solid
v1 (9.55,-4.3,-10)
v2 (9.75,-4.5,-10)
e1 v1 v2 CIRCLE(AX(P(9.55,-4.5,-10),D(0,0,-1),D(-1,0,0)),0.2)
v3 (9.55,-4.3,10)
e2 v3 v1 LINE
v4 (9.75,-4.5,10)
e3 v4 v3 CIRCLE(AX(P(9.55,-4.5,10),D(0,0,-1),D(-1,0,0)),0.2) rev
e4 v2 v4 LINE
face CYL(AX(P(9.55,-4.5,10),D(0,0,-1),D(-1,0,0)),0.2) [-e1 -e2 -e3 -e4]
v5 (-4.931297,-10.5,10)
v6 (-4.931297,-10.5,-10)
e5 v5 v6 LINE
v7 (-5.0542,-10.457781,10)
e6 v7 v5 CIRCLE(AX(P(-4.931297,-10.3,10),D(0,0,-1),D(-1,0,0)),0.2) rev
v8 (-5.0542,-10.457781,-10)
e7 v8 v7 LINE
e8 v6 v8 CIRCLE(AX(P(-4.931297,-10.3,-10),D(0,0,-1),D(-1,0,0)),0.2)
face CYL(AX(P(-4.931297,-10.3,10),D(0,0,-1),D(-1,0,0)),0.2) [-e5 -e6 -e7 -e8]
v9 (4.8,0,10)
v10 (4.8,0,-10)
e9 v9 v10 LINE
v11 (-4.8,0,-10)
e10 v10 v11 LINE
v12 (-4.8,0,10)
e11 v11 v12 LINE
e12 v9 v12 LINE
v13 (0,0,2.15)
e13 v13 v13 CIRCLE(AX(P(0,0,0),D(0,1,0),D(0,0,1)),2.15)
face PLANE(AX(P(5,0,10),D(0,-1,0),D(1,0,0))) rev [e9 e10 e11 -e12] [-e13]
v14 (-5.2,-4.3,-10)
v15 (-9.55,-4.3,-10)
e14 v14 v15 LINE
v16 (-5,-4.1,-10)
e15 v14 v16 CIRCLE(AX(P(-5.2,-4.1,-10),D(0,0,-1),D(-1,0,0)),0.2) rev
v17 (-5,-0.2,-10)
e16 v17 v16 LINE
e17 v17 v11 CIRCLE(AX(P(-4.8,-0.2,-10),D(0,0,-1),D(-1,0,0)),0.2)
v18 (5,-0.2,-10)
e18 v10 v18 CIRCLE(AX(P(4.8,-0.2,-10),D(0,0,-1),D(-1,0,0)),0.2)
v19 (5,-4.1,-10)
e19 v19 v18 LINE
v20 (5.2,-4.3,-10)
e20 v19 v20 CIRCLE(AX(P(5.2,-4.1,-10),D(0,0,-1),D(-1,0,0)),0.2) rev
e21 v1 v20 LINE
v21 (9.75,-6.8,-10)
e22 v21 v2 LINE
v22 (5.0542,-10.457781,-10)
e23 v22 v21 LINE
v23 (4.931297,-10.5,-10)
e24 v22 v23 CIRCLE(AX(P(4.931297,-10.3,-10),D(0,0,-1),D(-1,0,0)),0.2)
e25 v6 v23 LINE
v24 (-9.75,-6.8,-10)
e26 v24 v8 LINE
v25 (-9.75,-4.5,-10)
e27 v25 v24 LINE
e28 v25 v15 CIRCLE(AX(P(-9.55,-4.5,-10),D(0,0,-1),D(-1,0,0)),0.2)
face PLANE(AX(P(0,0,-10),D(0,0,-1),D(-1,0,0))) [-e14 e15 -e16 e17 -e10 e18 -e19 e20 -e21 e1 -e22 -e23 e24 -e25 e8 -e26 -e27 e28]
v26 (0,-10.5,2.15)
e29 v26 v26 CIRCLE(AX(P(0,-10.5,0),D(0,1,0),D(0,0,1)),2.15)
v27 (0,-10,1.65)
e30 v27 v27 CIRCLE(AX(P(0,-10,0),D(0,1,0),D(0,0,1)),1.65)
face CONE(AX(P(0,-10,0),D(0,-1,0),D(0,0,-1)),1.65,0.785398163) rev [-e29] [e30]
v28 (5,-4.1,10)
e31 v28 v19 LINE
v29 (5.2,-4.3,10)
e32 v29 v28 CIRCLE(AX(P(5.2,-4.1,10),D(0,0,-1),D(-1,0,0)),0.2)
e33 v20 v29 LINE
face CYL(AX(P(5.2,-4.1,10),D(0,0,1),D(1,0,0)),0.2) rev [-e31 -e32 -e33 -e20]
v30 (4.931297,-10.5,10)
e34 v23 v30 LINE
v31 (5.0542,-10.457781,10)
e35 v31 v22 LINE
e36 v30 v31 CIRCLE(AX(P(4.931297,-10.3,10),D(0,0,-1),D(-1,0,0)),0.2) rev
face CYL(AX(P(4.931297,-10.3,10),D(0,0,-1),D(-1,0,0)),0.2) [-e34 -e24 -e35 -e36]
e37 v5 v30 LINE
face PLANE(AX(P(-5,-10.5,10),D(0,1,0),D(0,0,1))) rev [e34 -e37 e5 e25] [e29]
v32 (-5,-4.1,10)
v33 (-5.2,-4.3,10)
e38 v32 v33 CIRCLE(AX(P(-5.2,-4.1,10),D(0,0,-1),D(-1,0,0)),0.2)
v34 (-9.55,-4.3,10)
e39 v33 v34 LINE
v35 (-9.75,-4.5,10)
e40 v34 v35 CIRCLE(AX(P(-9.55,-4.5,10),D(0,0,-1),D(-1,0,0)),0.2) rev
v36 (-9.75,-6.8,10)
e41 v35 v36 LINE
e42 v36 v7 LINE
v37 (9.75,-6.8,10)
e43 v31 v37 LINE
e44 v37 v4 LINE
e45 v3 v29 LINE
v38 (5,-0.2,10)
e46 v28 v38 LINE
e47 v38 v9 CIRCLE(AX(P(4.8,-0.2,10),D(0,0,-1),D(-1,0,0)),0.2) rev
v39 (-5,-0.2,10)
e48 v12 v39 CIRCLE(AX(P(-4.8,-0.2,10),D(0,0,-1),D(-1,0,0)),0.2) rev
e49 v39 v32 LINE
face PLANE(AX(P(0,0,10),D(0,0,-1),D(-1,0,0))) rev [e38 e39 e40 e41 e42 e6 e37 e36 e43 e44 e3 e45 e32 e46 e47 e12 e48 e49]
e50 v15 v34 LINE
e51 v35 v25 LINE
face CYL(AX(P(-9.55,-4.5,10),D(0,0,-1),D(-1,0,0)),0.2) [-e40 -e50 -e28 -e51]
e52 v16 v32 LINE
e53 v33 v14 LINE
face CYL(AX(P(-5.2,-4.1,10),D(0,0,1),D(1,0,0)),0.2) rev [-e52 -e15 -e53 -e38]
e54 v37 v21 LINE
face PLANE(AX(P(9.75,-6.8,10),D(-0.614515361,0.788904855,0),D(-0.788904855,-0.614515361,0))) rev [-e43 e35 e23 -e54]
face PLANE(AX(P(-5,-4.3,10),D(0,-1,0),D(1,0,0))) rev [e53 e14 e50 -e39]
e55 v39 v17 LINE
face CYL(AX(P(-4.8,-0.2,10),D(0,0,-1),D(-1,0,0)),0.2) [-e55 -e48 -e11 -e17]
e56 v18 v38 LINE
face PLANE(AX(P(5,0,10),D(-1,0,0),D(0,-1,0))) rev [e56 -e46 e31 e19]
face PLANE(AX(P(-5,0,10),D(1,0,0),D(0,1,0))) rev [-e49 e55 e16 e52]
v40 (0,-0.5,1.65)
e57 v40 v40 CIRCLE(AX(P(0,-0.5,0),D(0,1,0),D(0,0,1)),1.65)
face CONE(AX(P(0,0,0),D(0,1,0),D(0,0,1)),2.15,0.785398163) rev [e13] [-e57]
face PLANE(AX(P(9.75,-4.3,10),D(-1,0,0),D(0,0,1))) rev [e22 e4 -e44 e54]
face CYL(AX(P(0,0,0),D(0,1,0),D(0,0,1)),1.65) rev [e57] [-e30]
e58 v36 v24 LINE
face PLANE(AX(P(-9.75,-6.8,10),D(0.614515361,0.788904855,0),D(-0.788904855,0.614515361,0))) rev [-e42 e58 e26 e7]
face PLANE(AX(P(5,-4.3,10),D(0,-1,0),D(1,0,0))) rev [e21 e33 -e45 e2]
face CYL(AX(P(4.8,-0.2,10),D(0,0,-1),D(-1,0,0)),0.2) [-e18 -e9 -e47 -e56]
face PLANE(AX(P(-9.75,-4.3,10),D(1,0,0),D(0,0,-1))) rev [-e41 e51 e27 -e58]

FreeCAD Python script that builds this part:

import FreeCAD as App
import Part
import Sketcher

V = App.Vector


def edges_at(feature, points):
    """Names of the edges that pass closest to the given points."""
    edges = feature.Shape.Edges
    near = lambda p: min(range(len(edges)), key=lambda i: edges[i].distToShape(Part.Vertex(*p))[0])
    return sorted({f"Edge{near(p) + 1}" for p in points})

doc = App.newDocument("Part")
body = doc.addObject("PartDesign::Body", "Body")

sketch1 = body.newObject("Sketcher::SketchObject", "Sketch")
sketch1.AttachmentSupport = (doc.getObject("XY_Plane"), [""])
sketch1.MapMode = "FlatFace"
sketch1.addGeometry(Part.LineSegment(V(5, 0, 0), V(-5, 0, 0)), False)
sketch1.addGeometry(Part.LineSegment(V(-5, 0, 0), V(-5, -4.3, 0)), False)
sketch1.addGeometry(Part.LineSegment(V(-5, -4.3, 0), V(-9.8, -4.3, 0)), False)
sketch1.addGeometry(Part.LineSegment(V(-9.8, -4.3, 0), V(-9.8, -6.8, 0)), False)
sketch1.addGeometry(Part.LineSegment(V(-9.8, -6.8, 0), V(-5, -10.5, 0)), False)
sketch1.addGeometry(Part.LineSegment(V(-5, -10.5, 0), V(5, -10.5, 0)), False)
sketch1.addGeometry(Part.LineSegment(V(5, -10.5, 0), V(9.8, -6.8, 0)), False)
sketch1.addGeometry(Part.LineSegment(V(9.8, -6.8, 0), V(9.8, -4.3, 0)), False)
sketch1.addGeometry(Part.LineSegment(V(9.8, -4.3, 0), V(5, -4.3, 0)), False)
sketch1.addGeometry(Part.LineSegment(V(5, -4.3, 0), V(5, 0, 0)), False)
sketch1.addConstraint(Sketcher.Constraint("Coincident", 0, 2, 1, 1))
sketch1.addConstraint(Sketcher.Constraint("Coincident", 1, 2, 2, 1))
sketch1.addConstraint(Sketcher.Constraint("Coincident", 2, 2, 3, 1))
sketch1.addConstraint(Sketcher.Constraint("Coincident", 3, 2, 4, 1))
sketch1.addConstraint(Sketcher.Constraint("Coincident", 4, 2, 5, 1))
sketch1.addConstraint(Sketcher.Constraint("Coincident", 5, 2, 6, 1))
sketch1.addConstraint(Sketcher.Constraint("Coincident", 6, 2, 7, 1))
sketch1.addConstraint(Sketcher.Constraint("Coincident", 7, 2, 8, 1))
sketch1.addConstraint(Sketcher.Constraint("Coincident", 8, 2, 9, 1))
sketch1.addConstraint(Sketcher.Constraint("Coincident", 9, 2, 0, 1))
sketch1.addConstraint(Sketcher.Constraint("Horizontal", 0))
sketch1.addConstraint(Sketcher.Constraint("Vertical", 1))
sketch1.addConstraint(Sketcher.Constraint("Horizontal", 2))
sketch1.addConstraint(Sketcher.Constraint("Vertical", 3))
sketch1.addConstraint(Sketcher.Constraint("Horizontal", 5))
sketch1.addConstraint(Sketcher.Constraint("Vertical", 7))
sketch1.addConstraint(Sketcher.Constraint("Horizontal", 8))
sketch1.addConstraint(Sketcher.Constraint("Vertical", 9))
sketch1.addConstraint(Sketcher.Constraint("Symmetric", 0, 2, 9, 2, -1, 1))
sketch1.addConstraint(Sketcher.Constraint("Symmetric", 3, 2, 6, 2, -2))
sketch1.addConstraint(Sketcher.Constraint("Horizontal", 2, 2, 7, 2))
sketch1.addConstraint(Sketcher.Constraint("Vertical", 1, 2, 4, 2))
sketch1.addConstraint(Sketcher.Constraint("Vertical", 5, 2, 8, 2))
sketch1.addConstraint(Sketcher.Constraint("DistanceX", 0, 2, 0, 1, 10.0))
sketch1.addConstraint(Sketcher.Constraint("DistanceY", 1, 2, 1, 1, 4.3))
sketch1.addConstraint(Sketcher.Constraint("DistanceY", 3, 2, 3, 1, 2.5))
sketch1.addConstraint(Sketcher.Constraint("DistanceX", 2, 2, 2, 1, 4.75))
sketch1.addConstraint(Sketcher.Constraint("DistanceY", 4, 2, -1, 1, 10.5))
pad1 = body.newObject("PartDesign::Pad", "Pad")
pad1.Profile = sketch1
pad1.Length = 20
pad1.Midplane = True

sketch2 = body.newObject("Sketcher::SketchObject", "Sketch001")
sketch2.AttachmentSupport = (doc.getObject("YZ_Plane"), [""])
sketch2.MapMode = "FlatFace"
sketch2.addGeometry(Part.LineSegment(V(-10.5, 0, 0), V(0, 0, 0)), False)
sketch2.addGeometry(Part.LineSegment(V(0, 0, 0), V(0, 2.1, 0)), False)
sketch2.addGeometry(Part.LineSegment(V(0, 2.1, 0), V(-0.5, 1.6, 0)), False)
sketch2.addGeometry(Part.LineSegment(V(-0.5, 1.6, 0), V(-10, 1.6, 0)), False)
sketch2.addGeometry(Part.LineSegment(V(-10, 1.6, 0), V(-10.5, 2.1, 0)), False)
sketch2.addGeometry(Part.LineSegment(V(-10.5, 2.1, 0), V(-10.5, 0, 0)), False)
sketch2.addConstraint(Sketcher.Constraint("Coincident", 0, 2, 1, 1))
sketch2.addConstraint(Sketcher.Constraint("Coincident", 1, 2, 2, 1))
sketch2.addConstraint(Sketcher.Constraint("Coincident", 2, 2, 3, 1))
sketch2.addConstraint(Sketcher.Constraint("Coincident", 3, 2, 4, 1))
sketch2.addConstraint(Sketcher.Constraint("Coincident", 4, 2, 5, 1))
sketch2.addConstraint(Sketcher.Constraint("Coincident", 5, 2, 0, 1))
sketch2.addConstraint(Sketcher.Constraint("Horizontal", 0))
sketch2.addConstraint(Sketcher.Constraint("Vertical", 1))
sketch2.addConstraint(Sketcher.Constraint("Horizontal", 3))
sketch2.addConstraint(Sketcher.Constraint("Vertical", 5))
sketch2.addConstraint(Sketcher.Constraint("Coincident", 0, 2, -1, 1))
sketch2.addConstraint(Sketcher.Constraint("Perpendicular", 2, 4))
sketch2.addConstraint(Sketcher.Constraint("Horizontal", 1, 2, 4, 2))
sketch2.addConstraint(Sketcher.Constraint("Equal", 2, 4))
sketch2.addConstraint(Sketcher.Constraint("DistanceX", 0, 1, 0, 2, 10.5))
sketch2.addConstraint(Sketcher.Constraint("DistanceX", 3, 2, 3, 1, 9.5))
sketch2.addConstraint(Sketcher.Constraint("DistanceY", 1, 1, 1, 2, 2.15))
groove = body.newObject("PartDesign::Groove", "Groove")
groove.Profile = sketch2
groove.ReferenceAxis = (sketch2, ["H_Axis"])
groove.Angle = 360
doc.recompute()

fillet = body.newObject("PartDesign::Fillet", "Fillet")
fillet.Base = (groove, edges_at(groove, [
    (-5, 0, 0),
    (5, 0, 0),
    (5, -4.3, 0),
    (9.75, -4.3, 0),
    (5, -10.5, 0),
    (-5, -10.5, 0),
    (-9.75, -4.3, 0),
    (-5, -4.3, 0),
]))
fillet.Radius = 0.2

doc.recompute()
